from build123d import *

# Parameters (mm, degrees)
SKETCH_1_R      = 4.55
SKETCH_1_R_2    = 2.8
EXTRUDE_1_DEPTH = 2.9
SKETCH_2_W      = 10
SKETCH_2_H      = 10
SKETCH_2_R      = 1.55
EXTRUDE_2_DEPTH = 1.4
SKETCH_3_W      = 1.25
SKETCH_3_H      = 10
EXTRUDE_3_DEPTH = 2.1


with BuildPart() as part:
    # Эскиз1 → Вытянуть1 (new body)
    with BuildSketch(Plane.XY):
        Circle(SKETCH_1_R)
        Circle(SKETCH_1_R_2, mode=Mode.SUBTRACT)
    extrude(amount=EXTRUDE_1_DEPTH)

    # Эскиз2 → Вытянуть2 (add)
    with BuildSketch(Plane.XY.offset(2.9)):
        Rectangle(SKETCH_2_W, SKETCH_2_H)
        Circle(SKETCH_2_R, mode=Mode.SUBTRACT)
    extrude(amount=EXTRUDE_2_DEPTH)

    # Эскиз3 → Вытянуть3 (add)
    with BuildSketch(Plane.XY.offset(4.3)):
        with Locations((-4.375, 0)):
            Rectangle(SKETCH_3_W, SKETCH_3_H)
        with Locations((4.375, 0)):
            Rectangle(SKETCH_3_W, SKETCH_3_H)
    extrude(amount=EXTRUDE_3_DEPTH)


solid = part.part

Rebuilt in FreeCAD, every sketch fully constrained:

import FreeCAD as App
import Part
import Sketcher
from FreeCAD import Vector
Q = App.Units.Quantity


def add_polygon(sketch, points):
    """Adds a closed chain of lines whose ends are joined by coincident constraints."""
    first, n = sketch.GeometryCount, len(points)
    for a, b in zip(points, points[1:] + points[:1]):
        sketch.addGeometry(Part.LineSegment(App.Vector(*a, 0), App.Vector(*b, 0)), False)
    for i in range(n):
        sketch.addConstraint(Sketcher.Constraint("Coincident", first + i, 2, first + (i + 1) % n, 1))

doc = App.newDocument("Part")
body = doc.addObject("PartDesign::Body", "Body")

# Sketch on XY plane
sketch1 = body.newObject("Sketcher::SketchObject", "Sketch")
sketch1.AttachmentSupport = (doc.getObject("XY_Plane"), [""])
sketch1.MapMode = "FlatFace"
sketch1.addGeometry(Part.Circle(Vector(0, 0, 0), Vector(0, 0, 1), 4.5), False)
sketch1.addGeometry(Part.Circle(Vector(0, 0, 0), Vector(0, 0, 1), 2.8), False)
sketch1.addConstraint(Sketcher.Constraint("Coincident", 0, 3, -1, 1))
sketch1.addConstraint(Sketcher.Constraint("Coincident", 1, 3, -1, 1))
sketch1.addConstraint(Sketcher.Constraint("Diameter", 0, Q("9.1 mm")))
sketch1.addConstraint(Sketcher.Constraint("Diameter", 1, Q("5.6 mm")))
pad1 = body.newObject("PartDesign::Pad", "Pad")
pad1.Profile = sketch1
pad1.Length = 2.9

# Sketch on XY plane
sketch2 = body.newObject("Sketcher::SketchObject", "Sketch001")
sketch2.AttachmentSupport = (doc.getObject("XY_Plane"), [""])
sketch2.MapMode = "FlatFace"
sketch2.AttachmentOffset = App.Placement(Vector(0, 0, 2.9), App.Rotation())
add_polygon(sketch2, [(-5, 5), (-5, -5), (5, -5), (5, 5)])  # lines 0-3
sketch2.addGeometry(Part.Circle(Vector(0, 0, 0), Vector(0, 0, 1), 1.6), False)  # 4
sketch2.addConstraint(Sketcher.Constraint("Vertical", 0))
sketch2.addConstraint(Sketcher.Constraint("Horizontal", 1))
sketch2.addConstraint(Sketcher.Constraint("Vertical", 2))
sketch2.addConstraint(Sketcher.Constraint("Horizontal", 3))
sketch2.addConstraint(Sketcher.Constraint("Coincident", 4, 3, -1, 1))
sketch2.addConstraint(Sketcher.Constraint("Symmetric", 0, 2, 2, 2, -1, 1))
sketch2.addConstraint(Sketcher.Constraint("Equal", 3, 0))
sketch2.addConstraint(Sketcher.Constraint("Diameter", 4, Q("3.1 mm")))
sketch2.addConstraint(Sketcher.Constraint("DistanceX", 1, 1, 1, 2, Q("10 mm")))
pad2 = body.newObject("PartDesign::Pad", "Pad001")
pad2.Profile = sketch2
pad2.Length = 1.4

# Sketch on XY plane
sketch3 = body.newObject("Sketcher::SketchObject", "Sketch002")
sketch3.AttachmentSupport = (doc.getObject("XY_Plane"), [""])
sketch3.MapMode = "FlatFace"
sketch3.AttachmentOffset = App.Placement(Vector(0, 0, 4.3), App.Rotation())
add_polygon(sketch3, [(-5, 5), (-5, -5), (-3.8, -5), (-3.8, 5)])  # lines 0-3
add_polygon(sketch3, [(3.8, 5), (3.8, -5), (5, -5), (5, 5)])  # lines 4-7
sketch3.addConstraint(Sketcher.Constraint("Vertical", 0))
sketch3.addConstraint(Sketcher.Constraint("Horizontal", 1))
sketch3.addConstraint(Sketcher.Constraint("Vertical", 2))
sketch3.addConstraint(Sketcher.Constraint("Horizontal", 3))
sketch3.addConstraint(Sketcher.Constraint("Vertical", 4))
sketch3.addConstraint(Sketcher.Constraint("Horizontal", 5))
sketch3.addConstraint(Sketcher.Constraint("Vertical", 6))
sketch3.addConstraint(Sketcher.Constraint("Horizontal", 7))
sketch3.addConstraint(Sketcher.Constraint("Symmetric", 2, 2, 4, 2, -1, 1))
sketch3.addConstraint(Sketcher.Constraint("Symmetric", 0, 2, 6, 2, -1, 1))
sketch3.addConstraint(Sketcher.Constraint("Horizontal", 1, 2, 4, 2))
sketch3.addConstraint(Sketcher.Constraint("DistanceY", 0, 2, 0, 1, Q("10 mm")))
sketch3.addConstraint(Sketcher.Constraint("DistanceX", 0, 2, -1, 1, Q("5 mm")))
sketch3.addConstraint(Sketcher.Constraint("DistanceX", 1, 1, 1, 2, Q("1.25 mm")))
pad3 = body.newObject("PartDesign::Pad", "Pad002")
pad3.Profile = sketch3
pad3.Length = 2.1

doc.recompute()
